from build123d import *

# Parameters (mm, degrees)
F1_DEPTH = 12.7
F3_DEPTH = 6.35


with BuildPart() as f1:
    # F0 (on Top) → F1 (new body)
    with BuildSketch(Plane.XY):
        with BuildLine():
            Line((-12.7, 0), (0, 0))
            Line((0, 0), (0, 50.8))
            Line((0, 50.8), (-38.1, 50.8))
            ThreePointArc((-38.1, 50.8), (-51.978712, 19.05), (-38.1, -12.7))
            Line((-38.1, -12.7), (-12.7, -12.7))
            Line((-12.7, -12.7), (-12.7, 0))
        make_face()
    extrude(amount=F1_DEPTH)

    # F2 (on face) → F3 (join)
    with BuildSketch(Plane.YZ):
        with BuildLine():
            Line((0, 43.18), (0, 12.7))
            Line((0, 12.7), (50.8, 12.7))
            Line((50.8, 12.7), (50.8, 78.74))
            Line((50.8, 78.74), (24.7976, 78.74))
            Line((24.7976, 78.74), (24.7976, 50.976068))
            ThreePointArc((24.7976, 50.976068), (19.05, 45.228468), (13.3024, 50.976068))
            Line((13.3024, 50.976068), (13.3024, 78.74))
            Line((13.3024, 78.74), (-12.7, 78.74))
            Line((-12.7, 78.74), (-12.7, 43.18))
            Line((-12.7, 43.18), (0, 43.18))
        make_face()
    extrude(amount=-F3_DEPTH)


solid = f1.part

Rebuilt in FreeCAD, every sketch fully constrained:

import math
import FreeCAD as App
import Part
import Sketcher

V = App.Vector
Q = App.Units.Quantity

doc = App.newDocument("Part")
params = doc.addObject("Spreadsheet::Sheet", "Params")
for row, (alias, value) in enumerate([
    ("sketch1_width", "1 in"),
    ("sketch1_height", "2 in"),
    ("sketch1_width2", "0.5 in"),
    ("pad1_length", "0.5 in"),
    ("sketch2_width", "2 in"),
    ("sketch2_width2", "0.5 in"),
    ("sketch2_height", "1.2 in"),
    ("sketch2_height2", "2.6 in"),
    ("pad2_length", "0.25 in"),
], start=1):
    params.set(f"A{row}", alias)
    params.set(f"B{row}", "=" + value)
    params.setAlias(f"B{row}", alias)

body = doc.addObject("PartDesign::Body", "Body")

sketch1 = body.newObject("Sketcher::SketchObject", "Sketch")
sketch1.AttachmentSupport = (doc.getObject("XY_Plane"), [""])
sketch1.MapMode = "FlatFace"
sketch1.addGeometry([
    Part.LineSegment(V(-13, 0, 0), V(0, 0, 0)),
    Part.LineSegment(V(0, 0, 0), V(0, 51, 0)),
    Part.LineSegment(V(0, 51, 0), V(-38, 51, 0)),
    Part.ArcOfCircle(Part.Circle(V(-9, 19, 0), V(0, 0, 1), 43), math.radians(133), math.radians(227)),
    Part.LineSegment(V(-38, -13, 0), V(-13, -13, 0)),
    Part.LineSegment(V(-13, -13, 0), V(-13, 0, 0)),
], False)
sketch1.addConstraint([
    Sketcher.Constraint("Coincident", 0, 2, 1, 1),
    Sketcher.Constraint("Coincident", 1, 2, 2, 1),
    Sketcher.Constraint("Coincident", 2, 2, 3, 1),
    Sketcher.Constraint("Coincident", 3, 2, 4, 1),
    Sketcher.Constraint("Coincident", 4, 2, 5, 1),
    Sketcher.Constraint("Coincident", 5, 2, 0, 1),
    Sketcher.Constraint("Horizontal", 0),
    Sketcher.Constraint("Vertical", 1),
    Sketcher.Constraint("Horizontal", 2),
    Sketcher.Constraint("Horizontal", 4),
    Sketcher.Constraint("Vertical", 5),
    Sketcher.Constraint("Coincident", 0, 2, -1, 1),
    Sketcher.Constraint("Vertical", 2, 2, 3, 2),
    Sketcher.Constraint("Equal", 0, 5),
    Sketcher.Constraint("DistanceX", 4, 1, 4, 2, Q("1 in")),
    Sketcher.Constraint("DistanceY", 1, 1, 1, 2, Q("2 in")),
    Sketcher.Constraint("DistanceX", 0, 1, 0, 2, Q("0.5 in")),
    Sketcher.Constraint("Radius", 3, Q("43.256217 mm")),
])
sketch1.setExpression("Constraints[14]", "Params.sketch1_width")
sketch1.setExpression("Constraints[15]", "Params.sketch1_height")
sketch1.setExpression("Constraints[16]", "Params.sketch1_width2")
pad1 = body.newObject("PartDesign::Pad", "Pad")
pad1.Profile = sketch1
pad1.setExpression("Length", "Params.pad1_length")

sketch2 = body.newObject("Sketcher::SketchObject", "Sketch001")
sketch2.AttachmentSupport = (doc.getObject("YZ_Plane"), [""])
sketch2.MapMode = "FlatFace"
sketch2.addGeometry([
    Part.LineSegment(V(0, 43, 0), V(0, 13, 0)),
    Part.LineSegment(V(0, 13, 0), V(51, 13, 0)),
    Part.LineSegment(V(51, 13, 0), V(51, 79, 0)),
    Part.LineSegment(V(51, 79, 0), V(25, 79, 0)),
    Part.LineSegment(V(25, 79, 0), V(25, 51, 0)),
    Part.ArcOfCircle(Part.Circle(V(19, 51, 0), V(0, 0, 1), 6), math.radians(180), math.radians(360)),
    Part.LineSegment(V(13, 51, 0), V(13, 79, 0)),
    Part.LineSegment(V(13, 79, 0), V(-13, 79, 0)),
    Part.LineSegment(V(-13, 79, 0), V(-13, 43, 0)),
    Part.LineSegment(V(-13, 43, 0), V(0, 43, 0)),
], False)
sketch2.addConstraint([
    Sketcher.Constraint("Coincident", 0, 2, 1, 1),
    Sketcher.Constraint("Coincident", 1, 2, 2, 1),
    Sketcher.Constraint("Coincident", 2, 2, 3, 1),
    Sketcher.Constraint("Coincident", 3, 2, 4, 1),
    Sketcher.Constraint("Tangent", 4, 2, 5, 2),
    Sketcher.Constraint("Tangent", 5, 1, 6, 1),
    Sketcher.Constraint("Coincident", 6, 2, 7, 1),
    Sketcher.Constraint("Coincident", 7, 2, 8, 1),
    Sketcher.Constraint("Coincident", 8, 2, 9, 1),
    Sketcher.Constraint("Coincident", 9, 2, 0, 1),
    Sketcher.Constraint("Vertical", 0),
    Sketcher.Constraint("Horizontal", 1),
    Sketcher.Constraint("Vertical", 2),
    Sketcher.Constraint("Horizontal", 3),
    Sketcher.Constraint("Vertical", 4),
    Sketcher.Constraint("Vertical", 6),
    Sketcher.Constraint("Horizontal", 7),
    Sketcher.Constraint("Vertical", 8),
    Sketcher.Constraint("Horizontal", 9),
    Sketcher.Constraint("PointOnObject", 0, 2, -2),
    Sketcher.Constraint("Horizontal", 3, 2, 6, 2),
    Sketcher.Constraint("Equal", 3, 7),
    Sketcher.Constraint("DistanceX", 1, 1, 1, 2, Q("2 in")),
    Sketcher.Constraint("DistanceX", 9, 1, 9, 2, Q("0.5 in")),
    Sketcher.Constraint("DistanceY", 0, 2, 0, 1, Q("1.2 in")),
    Sketcher.Constraint("DistanceY", 2, 1, 2, 2, Q("2.6 in")),
    Sketcher.Constraint("DistanceY", -1, 1, 0, 2, Q("0.5 in")),
    Sketcher.Constraint("Radius", 5, Q("5.7476 mm")),
    Sketcher.Constraint("DistanceY", 4, 2, 4, 1, Q("27.763932 mm")),
])
sketch2.setExpression("Constraints[22]", "Params.sketch2_width")
sketch2.setExpression("Constraints[23]", "Params.sketch2_width2")
sketch2.setExpression("Constraints[24]", "Params.sketch2_height")
sketch2.setExpression("Constraints[25]", "Params.sketch2_height2")
pad2 = body.newObject("PartDesign::Pad", "Pad001")
pad2.Profile = sketch2
pad2.setExpression("Length", "Params.pad2_length")
pad2.Reversed = True

doc.recompute()
